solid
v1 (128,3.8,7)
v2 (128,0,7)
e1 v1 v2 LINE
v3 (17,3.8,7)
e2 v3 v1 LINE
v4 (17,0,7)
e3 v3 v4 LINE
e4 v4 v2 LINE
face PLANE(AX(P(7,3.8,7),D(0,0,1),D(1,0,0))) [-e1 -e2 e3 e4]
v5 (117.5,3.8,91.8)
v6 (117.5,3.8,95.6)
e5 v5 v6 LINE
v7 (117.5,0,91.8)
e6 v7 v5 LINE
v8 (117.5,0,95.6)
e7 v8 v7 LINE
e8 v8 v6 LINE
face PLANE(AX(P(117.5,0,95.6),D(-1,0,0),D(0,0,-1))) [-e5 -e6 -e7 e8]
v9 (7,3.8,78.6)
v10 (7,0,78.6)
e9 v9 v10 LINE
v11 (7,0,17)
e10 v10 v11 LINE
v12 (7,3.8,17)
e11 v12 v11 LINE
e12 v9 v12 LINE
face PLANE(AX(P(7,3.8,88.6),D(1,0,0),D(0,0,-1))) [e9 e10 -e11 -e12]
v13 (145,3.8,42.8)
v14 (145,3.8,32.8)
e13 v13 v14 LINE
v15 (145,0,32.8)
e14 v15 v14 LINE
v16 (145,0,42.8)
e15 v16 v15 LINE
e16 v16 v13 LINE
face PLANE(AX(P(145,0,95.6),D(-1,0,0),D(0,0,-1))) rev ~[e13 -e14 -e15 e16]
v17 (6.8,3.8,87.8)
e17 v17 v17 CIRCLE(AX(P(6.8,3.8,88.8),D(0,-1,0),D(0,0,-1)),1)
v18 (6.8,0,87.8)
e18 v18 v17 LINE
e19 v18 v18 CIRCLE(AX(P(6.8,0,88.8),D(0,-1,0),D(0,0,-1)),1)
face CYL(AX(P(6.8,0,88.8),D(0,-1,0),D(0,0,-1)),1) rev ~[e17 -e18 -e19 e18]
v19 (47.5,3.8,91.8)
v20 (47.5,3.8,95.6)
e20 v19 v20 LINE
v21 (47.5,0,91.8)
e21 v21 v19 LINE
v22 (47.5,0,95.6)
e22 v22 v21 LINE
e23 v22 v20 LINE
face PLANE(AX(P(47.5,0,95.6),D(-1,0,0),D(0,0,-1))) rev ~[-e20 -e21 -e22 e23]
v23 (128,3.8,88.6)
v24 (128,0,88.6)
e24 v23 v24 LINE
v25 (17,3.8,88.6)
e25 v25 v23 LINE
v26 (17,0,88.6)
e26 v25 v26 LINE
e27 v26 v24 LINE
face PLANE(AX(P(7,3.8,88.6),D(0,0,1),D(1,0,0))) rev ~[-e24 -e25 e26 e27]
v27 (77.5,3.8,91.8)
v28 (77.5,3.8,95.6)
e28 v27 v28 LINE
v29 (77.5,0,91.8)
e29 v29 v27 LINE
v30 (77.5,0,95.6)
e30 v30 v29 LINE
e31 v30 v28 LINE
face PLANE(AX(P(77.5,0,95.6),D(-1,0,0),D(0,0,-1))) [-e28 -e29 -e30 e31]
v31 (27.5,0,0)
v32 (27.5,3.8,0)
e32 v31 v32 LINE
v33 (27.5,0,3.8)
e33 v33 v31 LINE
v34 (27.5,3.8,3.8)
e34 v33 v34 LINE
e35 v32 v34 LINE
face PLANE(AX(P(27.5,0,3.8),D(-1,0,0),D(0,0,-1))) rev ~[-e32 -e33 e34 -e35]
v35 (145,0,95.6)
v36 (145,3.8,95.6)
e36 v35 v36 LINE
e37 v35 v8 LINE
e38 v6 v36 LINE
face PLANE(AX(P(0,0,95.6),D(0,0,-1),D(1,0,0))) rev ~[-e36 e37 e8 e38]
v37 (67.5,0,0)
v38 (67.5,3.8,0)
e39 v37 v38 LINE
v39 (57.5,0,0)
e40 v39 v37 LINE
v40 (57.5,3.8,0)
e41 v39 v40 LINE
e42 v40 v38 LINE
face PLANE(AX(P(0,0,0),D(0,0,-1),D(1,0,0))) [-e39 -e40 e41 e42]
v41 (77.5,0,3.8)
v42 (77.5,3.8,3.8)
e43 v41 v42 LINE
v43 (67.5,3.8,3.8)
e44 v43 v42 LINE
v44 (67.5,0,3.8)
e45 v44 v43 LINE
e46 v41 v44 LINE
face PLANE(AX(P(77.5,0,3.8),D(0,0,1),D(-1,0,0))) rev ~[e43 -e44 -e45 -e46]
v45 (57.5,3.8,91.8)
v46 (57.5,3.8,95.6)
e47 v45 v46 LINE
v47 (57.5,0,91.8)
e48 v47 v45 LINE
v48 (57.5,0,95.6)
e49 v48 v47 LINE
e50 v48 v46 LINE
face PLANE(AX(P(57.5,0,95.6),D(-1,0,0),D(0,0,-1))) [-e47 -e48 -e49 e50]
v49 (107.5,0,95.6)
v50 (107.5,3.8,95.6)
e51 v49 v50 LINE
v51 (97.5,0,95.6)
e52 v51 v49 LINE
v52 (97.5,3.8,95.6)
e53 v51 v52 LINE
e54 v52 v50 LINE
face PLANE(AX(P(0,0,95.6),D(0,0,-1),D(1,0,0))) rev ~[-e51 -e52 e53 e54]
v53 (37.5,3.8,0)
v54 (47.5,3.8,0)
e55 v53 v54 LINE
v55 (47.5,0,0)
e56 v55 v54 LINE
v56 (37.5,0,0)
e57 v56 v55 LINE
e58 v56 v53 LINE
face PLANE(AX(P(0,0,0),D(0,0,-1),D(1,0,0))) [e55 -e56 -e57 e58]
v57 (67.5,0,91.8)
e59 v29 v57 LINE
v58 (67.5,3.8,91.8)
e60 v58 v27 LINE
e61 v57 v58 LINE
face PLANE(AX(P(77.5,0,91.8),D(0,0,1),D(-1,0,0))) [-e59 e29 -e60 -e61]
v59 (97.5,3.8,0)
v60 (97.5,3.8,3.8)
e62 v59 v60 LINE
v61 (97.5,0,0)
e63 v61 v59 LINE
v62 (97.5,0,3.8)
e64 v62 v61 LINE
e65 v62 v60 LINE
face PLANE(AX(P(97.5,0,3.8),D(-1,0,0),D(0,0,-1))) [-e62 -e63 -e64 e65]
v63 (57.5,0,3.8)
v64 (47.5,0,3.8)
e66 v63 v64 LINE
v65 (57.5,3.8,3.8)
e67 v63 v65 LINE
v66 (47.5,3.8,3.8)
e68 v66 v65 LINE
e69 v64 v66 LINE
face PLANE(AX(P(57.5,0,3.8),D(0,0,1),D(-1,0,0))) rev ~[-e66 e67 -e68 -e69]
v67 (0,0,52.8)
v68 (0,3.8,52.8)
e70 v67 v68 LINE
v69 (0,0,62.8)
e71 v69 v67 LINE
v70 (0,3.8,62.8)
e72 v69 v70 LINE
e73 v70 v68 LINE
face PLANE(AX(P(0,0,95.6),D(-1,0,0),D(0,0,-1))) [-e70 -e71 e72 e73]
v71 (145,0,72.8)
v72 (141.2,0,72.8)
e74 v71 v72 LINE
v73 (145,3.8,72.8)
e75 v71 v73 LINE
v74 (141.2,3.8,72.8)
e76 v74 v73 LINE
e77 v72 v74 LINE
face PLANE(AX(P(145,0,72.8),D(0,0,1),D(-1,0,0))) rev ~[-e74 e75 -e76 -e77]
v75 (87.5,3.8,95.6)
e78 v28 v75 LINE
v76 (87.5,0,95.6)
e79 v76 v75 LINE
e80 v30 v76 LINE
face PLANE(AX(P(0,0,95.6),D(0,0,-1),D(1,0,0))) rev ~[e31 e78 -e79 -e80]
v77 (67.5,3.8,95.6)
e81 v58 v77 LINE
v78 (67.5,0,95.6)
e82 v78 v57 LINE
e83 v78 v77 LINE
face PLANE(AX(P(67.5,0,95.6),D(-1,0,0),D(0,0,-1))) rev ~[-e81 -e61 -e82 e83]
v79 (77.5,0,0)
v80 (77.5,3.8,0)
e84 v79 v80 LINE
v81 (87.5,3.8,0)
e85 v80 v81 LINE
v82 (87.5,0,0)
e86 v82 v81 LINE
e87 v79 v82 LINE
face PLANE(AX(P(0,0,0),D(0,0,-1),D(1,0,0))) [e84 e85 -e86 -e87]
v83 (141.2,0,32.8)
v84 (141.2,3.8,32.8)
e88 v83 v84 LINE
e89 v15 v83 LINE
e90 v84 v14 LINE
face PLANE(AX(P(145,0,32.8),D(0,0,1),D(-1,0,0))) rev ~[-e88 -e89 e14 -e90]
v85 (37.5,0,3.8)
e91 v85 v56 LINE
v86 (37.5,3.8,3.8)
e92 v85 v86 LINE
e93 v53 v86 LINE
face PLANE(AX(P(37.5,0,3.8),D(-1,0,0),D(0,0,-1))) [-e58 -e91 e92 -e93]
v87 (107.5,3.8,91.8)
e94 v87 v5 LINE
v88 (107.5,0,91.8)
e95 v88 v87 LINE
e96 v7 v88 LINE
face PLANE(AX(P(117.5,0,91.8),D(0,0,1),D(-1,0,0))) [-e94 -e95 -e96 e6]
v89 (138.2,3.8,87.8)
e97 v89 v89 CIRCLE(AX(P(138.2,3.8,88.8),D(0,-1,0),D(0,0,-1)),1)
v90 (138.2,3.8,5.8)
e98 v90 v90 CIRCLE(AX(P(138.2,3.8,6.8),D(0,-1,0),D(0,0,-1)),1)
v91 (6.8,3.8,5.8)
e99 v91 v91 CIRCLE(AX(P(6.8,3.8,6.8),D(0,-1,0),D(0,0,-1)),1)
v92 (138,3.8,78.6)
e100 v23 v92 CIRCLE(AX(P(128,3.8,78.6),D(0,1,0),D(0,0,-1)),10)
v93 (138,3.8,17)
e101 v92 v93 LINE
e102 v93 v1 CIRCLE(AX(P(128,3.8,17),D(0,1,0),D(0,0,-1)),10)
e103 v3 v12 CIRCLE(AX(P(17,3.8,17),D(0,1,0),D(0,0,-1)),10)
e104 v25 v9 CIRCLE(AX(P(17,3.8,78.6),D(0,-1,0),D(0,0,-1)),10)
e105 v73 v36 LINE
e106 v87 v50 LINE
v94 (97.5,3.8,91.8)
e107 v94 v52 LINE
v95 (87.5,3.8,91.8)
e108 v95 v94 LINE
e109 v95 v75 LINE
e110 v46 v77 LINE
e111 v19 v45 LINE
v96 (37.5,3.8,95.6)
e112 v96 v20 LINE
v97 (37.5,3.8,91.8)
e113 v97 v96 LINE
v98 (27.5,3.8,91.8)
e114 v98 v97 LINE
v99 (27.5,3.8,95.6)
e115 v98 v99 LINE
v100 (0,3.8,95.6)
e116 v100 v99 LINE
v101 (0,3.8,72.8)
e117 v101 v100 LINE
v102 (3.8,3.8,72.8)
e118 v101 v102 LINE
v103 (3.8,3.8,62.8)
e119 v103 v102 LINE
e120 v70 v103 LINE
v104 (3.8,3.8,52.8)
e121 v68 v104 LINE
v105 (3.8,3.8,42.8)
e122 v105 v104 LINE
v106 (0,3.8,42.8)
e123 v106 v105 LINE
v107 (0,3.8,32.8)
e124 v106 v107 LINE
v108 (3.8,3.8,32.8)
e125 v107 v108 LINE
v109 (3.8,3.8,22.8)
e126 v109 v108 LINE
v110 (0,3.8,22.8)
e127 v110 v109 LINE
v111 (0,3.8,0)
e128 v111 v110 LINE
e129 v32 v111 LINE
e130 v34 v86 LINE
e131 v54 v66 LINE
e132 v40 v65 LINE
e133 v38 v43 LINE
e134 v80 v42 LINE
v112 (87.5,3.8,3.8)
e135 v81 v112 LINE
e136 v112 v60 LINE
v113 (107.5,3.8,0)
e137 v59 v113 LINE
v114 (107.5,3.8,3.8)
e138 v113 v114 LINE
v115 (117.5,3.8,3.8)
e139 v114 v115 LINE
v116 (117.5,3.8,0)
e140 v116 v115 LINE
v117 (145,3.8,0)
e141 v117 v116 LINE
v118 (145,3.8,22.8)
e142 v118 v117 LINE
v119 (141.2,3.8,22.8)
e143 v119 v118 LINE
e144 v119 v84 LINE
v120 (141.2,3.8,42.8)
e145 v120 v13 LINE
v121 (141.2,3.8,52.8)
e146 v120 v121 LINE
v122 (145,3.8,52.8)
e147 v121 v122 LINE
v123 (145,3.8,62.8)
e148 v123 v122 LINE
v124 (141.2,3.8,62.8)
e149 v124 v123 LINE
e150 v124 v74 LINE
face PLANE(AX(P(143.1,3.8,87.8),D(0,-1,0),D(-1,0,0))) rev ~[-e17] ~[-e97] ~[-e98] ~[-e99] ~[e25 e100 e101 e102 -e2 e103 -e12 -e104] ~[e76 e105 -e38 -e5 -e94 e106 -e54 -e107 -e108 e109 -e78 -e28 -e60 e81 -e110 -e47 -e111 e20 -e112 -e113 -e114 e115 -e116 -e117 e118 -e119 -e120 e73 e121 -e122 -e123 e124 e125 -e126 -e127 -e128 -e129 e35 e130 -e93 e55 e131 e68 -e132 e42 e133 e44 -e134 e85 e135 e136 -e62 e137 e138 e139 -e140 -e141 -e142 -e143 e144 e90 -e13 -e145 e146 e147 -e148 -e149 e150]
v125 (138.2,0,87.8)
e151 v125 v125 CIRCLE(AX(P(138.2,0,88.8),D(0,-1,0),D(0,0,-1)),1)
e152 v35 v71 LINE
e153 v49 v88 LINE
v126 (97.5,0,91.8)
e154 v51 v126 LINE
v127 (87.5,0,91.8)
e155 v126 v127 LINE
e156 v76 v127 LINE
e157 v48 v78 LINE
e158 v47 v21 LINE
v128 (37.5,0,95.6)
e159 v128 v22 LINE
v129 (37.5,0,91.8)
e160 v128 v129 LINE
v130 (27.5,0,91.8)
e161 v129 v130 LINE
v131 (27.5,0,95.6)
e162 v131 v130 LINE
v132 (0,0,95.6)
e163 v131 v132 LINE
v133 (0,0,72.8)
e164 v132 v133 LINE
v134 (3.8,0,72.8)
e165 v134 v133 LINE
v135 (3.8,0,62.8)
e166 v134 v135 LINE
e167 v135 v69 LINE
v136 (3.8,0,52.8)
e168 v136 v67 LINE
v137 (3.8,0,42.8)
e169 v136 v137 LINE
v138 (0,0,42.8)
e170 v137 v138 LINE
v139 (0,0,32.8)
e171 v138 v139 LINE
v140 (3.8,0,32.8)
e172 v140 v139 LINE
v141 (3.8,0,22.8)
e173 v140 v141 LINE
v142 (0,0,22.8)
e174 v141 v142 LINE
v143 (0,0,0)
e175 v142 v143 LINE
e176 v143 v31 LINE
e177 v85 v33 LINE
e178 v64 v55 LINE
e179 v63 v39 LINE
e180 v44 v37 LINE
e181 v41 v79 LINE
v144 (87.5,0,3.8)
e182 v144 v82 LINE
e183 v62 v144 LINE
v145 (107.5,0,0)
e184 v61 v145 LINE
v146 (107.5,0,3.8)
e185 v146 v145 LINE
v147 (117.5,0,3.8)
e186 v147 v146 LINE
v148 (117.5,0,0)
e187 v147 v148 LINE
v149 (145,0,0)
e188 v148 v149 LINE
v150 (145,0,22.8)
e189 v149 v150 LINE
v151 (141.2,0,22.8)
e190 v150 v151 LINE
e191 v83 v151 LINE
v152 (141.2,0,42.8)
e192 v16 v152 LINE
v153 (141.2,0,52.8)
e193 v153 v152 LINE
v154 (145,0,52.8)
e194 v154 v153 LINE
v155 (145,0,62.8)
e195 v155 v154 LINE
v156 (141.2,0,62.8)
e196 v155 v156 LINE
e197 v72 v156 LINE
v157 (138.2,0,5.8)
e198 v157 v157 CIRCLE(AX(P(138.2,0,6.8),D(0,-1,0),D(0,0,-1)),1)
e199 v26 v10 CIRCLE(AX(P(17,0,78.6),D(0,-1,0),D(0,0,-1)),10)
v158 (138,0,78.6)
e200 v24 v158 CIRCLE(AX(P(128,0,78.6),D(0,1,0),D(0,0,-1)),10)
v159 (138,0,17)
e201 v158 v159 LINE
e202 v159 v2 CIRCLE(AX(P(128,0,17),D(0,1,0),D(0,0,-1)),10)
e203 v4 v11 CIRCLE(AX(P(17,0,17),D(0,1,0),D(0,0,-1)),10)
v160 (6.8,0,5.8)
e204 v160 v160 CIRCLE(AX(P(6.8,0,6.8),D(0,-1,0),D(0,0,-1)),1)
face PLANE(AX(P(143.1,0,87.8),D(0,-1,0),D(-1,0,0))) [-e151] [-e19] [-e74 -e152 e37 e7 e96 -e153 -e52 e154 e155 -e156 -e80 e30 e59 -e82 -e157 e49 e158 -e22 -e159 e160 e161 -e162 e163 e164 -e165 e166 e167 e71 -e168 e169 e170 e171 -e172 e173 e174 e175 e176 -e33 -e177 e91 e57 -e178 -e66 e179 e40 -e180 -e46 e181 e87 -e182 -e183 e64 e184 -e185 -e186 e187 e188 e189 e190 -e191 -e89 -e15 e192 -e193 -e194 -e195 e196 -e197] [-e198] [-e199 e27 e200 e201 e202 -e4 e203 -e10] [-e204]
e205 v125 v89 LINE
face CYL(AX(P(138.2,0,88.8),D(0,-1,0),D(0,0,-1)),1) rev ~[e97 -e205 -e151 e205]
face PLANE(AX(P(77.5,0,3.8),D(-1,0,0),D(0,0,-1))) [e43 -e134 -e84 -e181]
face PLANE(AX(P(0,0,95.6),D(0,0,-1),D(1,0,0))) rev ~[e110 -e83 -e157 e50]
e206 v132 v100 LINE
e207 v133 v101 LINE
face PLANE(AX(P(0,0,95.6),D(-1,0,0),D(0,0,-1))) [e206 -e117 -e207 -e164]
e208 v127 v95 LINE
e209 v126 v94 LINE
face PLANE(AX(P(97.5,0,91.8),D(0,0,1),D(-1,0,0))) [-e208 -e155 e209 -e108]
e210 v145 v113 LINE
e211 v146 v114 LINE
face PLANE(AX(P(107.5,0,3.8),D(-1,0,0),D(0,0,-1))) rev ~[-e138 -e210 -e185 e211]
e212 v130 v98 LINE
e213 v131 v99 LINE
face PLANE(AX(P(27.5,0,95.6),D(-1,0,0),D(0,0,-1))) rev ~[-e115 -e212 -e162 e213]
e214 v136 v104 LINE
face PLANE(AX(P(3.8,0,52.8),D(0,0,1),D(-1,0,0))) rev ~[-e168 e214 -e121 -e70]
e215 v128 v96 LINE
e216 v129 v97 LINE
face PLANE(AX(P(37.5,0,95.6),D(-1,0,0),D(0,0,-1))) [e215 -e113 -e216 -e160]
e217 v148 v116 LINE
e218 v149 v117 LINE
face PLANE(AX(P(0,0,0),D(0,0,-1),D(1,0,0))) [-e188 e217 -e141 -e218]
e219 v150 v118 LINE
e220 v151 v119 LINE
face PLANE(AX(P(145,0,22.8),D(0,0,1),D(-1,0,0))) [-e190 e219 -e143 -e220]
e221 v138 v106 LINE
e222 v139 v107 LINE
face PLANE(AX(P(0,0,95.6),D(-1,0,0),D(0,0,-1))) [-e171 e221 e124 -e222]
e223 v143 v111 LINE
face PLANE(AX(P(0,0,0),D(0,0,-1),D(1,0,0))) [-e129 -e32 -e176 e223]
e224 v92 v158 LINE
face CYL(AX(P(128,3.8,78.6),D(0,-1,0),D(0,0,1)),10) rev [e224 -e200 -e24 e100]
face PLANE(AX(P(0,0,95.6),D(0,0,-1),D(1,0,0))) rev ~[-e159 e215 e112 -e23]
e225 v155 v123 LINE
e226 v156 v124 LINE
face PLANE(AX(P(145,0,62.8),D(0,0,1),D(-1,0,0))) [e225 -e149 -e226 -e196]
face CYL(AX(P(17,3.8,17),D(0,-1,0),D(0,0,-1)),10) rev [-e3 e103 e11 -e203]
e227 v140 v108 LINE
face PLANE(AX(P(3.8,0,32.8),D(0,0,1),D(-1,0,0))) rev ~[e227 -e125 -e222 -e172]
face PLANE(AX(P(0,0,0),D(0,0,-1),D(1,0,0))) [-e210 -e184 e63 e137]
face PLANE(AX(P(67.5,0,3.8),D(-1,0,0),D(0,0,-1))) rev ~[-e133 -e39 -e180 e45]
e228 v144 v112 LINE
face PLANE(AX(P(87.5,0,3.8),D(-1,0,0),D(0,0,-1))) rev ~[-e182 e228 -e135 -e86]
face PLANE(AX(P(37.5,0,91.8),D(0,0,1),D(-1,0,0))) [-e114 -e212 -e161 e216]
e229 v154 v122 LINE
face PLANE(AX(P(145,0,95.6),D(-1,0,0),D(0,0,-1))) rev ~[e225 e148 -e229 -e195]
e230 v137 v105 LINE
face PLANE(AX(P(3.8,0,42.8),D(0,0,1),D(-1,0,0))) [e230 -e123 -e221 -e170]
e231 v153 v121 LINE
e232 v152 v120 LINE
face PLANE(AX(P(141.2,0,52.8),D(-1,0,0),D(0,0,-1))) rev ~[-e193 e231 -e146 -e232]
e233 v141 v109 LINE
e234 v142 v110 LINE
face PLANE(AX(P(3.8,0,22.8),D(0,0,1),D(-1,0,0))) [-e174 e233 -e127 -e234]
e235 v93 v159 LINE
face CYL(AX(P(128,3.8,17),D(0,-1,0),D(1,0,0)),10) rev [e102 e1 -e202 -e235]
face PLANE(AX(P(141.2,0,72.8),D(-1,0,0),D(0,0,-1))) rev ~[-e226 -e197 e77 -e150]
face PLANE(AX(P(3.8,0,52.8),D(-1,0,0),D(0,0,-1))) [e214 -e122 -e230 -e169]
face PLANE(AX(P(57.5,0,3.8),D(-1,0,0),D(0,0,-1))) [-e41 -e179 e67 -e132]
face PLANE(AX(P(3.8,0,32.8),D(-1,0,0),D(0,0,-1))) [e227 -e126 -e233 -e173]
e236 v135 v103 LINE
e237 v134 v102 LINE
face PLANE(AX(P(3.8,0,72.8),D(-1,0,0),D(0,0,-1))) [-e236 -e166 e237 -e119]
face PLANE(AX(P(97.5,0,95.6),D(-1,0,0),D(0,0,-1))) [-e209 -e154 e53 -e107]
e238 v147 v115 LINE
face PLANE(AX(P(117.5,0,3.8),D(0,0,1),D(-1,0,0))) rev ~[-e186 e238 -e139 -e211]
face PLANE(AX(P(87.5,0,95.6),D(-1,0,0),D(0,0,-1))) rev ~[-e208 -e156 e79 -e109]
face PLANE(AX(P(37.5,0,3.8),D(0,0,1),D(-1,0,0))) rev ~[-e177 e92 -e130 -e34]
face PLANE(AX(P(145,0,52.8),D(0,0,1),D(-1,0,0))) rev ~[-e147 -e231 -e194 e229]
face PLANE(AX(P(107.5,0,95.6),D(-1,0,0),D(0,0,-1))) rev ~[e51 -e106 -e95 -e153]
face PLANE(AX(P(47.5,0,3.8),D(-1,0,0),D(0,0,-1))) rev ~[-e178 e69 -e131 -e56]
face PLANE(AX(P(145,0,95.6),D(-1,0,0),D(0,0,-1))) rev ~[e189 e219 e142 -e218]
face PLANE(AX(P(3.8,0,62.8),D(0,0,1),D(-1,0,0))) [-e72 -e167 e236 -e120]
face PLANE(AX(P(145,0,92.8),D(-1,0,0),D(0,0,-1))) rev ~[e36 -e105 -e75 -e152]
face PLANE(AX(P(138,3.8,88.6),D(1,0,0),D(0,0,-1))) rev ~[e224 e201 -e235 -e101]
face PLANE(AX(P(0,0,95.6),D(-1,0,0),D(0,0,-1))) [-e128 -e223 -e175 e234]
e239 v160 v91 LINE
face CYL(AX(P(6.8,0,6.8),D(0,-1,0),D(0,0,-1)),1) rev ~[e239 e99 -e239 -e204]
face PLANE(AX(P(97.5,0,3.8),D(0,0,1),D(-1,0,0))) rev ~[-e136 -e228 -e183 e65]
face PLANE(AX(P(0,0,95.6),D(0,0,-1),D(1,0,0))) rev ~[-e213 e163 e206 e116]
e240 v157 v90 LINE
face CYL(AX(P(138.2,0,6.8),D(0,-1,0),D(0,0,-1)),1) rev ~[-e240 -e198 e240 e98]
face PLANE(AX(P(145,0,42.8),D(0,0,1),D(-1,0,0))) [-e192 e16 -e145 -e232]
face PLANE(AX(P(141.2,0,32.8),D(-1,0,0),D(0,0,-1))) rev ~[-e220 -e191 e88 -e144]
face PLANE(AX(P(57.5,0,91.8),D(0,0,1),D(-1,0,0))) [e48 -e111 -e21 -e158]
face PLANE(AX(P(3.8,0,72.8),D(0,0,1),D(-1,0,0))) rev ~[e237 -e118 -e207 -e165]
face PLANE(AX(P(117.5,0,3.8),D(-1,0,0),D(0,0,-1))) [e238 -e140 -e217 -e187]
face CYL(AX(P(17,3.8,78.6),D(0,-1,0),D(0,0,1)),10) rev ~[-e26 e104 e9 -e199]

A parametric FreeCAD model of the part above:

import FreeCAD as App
import Part
import Sketcher


def edges_at(feature, points):
    """Names of the edges that pass closest to the given points."""
    edges = feature.Shape.Edges
    near = lambda p: min(range(len(edges)), key=lambda i: edges[i].distToShape(Part.Vertex(*p))[0])
    return sorted({f"Edge{near(p) + 1}" for p in points})

doc = App.newDocument("Part")
params = doc.addObject("Spreadsheet::Sheet", "Params")
for row, (alias, value) in enumerate([
    ("sketch1_width", "145 mm"),
    ("sketch1_height", "95.6 mm"),
    ("pad1_length", "3.8 mm"),
    ("sketch2_width", "131 mm"),
    ("sketch2_height", "81.6 mm"),
    ("fillet_radius", "10 mm"),
    ("sketch3_diameter", "2 mm"),
    ("sketch4_width", "10 mm"),
    ("sketch4_height", "3.8 mm"),
    ("linearpattern_pitch", "20 mm"),
    ("linearpattern2_pitch", "20 mm"),
    ("sketch5_height", "10 mm"),
    ("sketch5_width", "3.8 mm"),
    ("linearpattern3_pitch", "20 mm"),
    ("linearpattern4_pitch", "20 mm"),
    ("sketch6_width", "10 mm"),
    ("sketch6_width2", "3.8 mm"),
    ("pad2_length", "3.8 mm"),
], start=1):
    params.set(f"A{row}", alias)
    params.set(f"B{row}", "=" + value)
    params.setAlias(f"B{row}", alias)

body = doc.addObject("PartDesign::Body", "Body")

sketch1 = body.newObject("Sketcher::SketchObject", "Sketch")
sketch1.AttachmentSupport = (doc.getObject("XZ_Plane"), [""])
sketch1.MapMode = "FlatFace"
sketch1.addGeometry(Part.LineSegment(App.Vector(0, 0, 0), App.Vector(0, 96, 0)), False)
sketch1.addGeometry(Part.LineSegment(App.Vector(0, 96, 0), App.Vector(145, 96, 0)), False)
sketch1.addGeometry(Part.LineSegment(App.Vector(145, 96, 0), App.Vector(145, 0, 0)), False)
sketch1.addGeometry(Part.LineSegment(App.Vector(145, 0, 0), App.Vector(0, 0, 0)), False)
sketch1.addConstraint(Sketcher.Constraint("Coincident", 0, 2, 1, 1))
sketch1.addConstraint(Sketcher.Constraint("Coincident", 1, 2, 2, 1))
sketch1.addConstraint(Sketcher.Constraint("Coincident", 2, 2, 3, 1))
sketch1.addConstraint(Sketcher.Constraint("Coincident", 3, 2, 0, 1))
sketch1.addConstraint(Sketcher.Constraint("Vertical", 0))
sketch1.addConstraint(Sketcher.Constraint("Horizontal", 1))
sketch1.addConstraint(Sketcher.Constraint("Vertical", 2))
sketch1.addConstraint(Sketcher.Constraint("Horizontal", 3))
sketch1.addConstraint(Sketcher.Constraint("Coincident", 3, 2, -1, 1))
sketch1.addConstraint(Sketcher.Constraint("DistanceX", 1, 1, 1, 2, 145.0))
sketch1.addConstraint(Sketcher.Constraint("DistanceY", 0, 1, 0, 2, 95.6))
sketch1.setExpression("Constraints[9]", "Params.sketch1_width")
sketch1.setExpression("Constraints[10]", "Params.sketch1_height")
pad1 = body.newObject("PartDesign::Pad", "Pad")
pad1.Profile = sketch1
pad1.setExpression("Length", "Params.pad1_length")
pad1.Reversed = True

sketch2 = body.newObject("Sketcher::SketchObject", "Sketch001")
sketch2.AttachmentSupport = (doc.getObject("XZ_Plane"), [""])
sketch2.MapMode = "FlatFace"
sketch2.AttachmentOffset = App.Placement(App.Vector(0, 0, -3.8), App.Rotation())
sketch2.addGeometry(Part.LineSegment(App.Vector(7, 7, 0), App.Vector(7, 89, 0)), False)
sketch2.addGeometry(Part.LineSegment(App.Vector(7, 89, 0), App.Vector(138, 89, 0)), False)
sketch2.addGeometry(Part.LineSegment(App.Vector(138, 89, 0), App.Vector(138, 7, 0)), False)
sketch2.addGeometry(Part.LineSegment(App.Vector(138, 7, 0), App.Vector(7, 7, 0)), False)
sketch2.addConstraint(Sketcher.Constraint("Coincident", 0, 2, 1, 1))
sketch2.addConstraint(Sketcher.Constraint("Coincident", 1, 2, 2, 1))
sketch2.addConstraint(Sketcher.Constraint("Coincident", 2, 2, 3, 1))
sketch2.addConstraint(Sketcher.Constraint("Coincident", 3, 2, 0, 1))
sketch2.addConstraint(Sketcher.Constraint("Vertical", 0))
sketch2.addConstraint(Sketcher.Constraint("Horizontal", 1))
sketch2.addConstraint(Sketcher.Constraint("Vertical", 2))
sketch2.addConstraint(Sketcher.Constraint("Horizontal", 3))
sketch2.addConstraint(Sketcher.Constraint("DistanceX", 1, 1, 1, 2, 131.0))
sketch2.addConstraint(Sketcher.Constraint("DistanceY", 0, 1, 0, 2, 81.6))
sketch2.addConstraint(Sketcher.Constraint("DistanceX", -1, 1, 0, 2, 7.0))
sketch2.addConstraint(Sketcher.Constraint("DistanceY", -1, 1, 2, 2, 7.0))
sketch2.setExpression("Constraints[8]", "Params.sketch2_width")
sketch2.setExpression("Constraints[9]", "Params.sketch2_height")
pocket1 = body.newObject("PartDesign::Pocket", "Pocket")
pocket1.Profile = sketch2
pocket1.Type = "ThroughAll"
pocket1.Reversed = True
doc.recompute()

fillet = body.newObject("PartDesign::Fillet", "Fillet")
fillet.Base = (pocket1, edges_at(pocket1, [
    (7, 1.9, 88.6),
    (7, 1.9, 7),
    (138, 1.9, 7),
    (138, 1.9, 88.6),
]))
fillet.setExpression("Radius", "Params.fillet_radius")

sketch3 = body.newObject("Sketcher::SketchObject", "Sketch002")
sketch3.AttachmentSupport = (doc.getObject("XZ_Plane"), [""])
sketch3.MapMode = "FlatFace"
sketch3.addGeometry(Part.Circle(App.Vector(6.8, 88.8, 0), App.Vector(0, 0, 1), 1), False)
sketch3.addGeometry(Part.Circle(App.Vector(138.2, 88.8, 0), App.Vector(0, 0, 1), 1), False)
sketch3.addGeometry(Part.Circle(App.Vector(138.2, 6.8, 0), App.Vector(0, 0, 1), 1), False)
sketch3.addGeometry(Part.Circle(App.Vector(6.8, 6.8, 0), App.Vector(0, 0, 1), 1), False)
sketch3.addConstraint(Sketcher.Constraint("Equal", 0, 1))
sketch3.addConstraint(Sketcher.Constraint("Equal", 1, 2))
sketch3.addConstraint(Sketcher.Constraint("Equal", 2, 3))
sketch3.addConstraint(Sketcher.Constraint("Horizontal", 0, 3, 1, 3))
sketch3.addConstraint(Sketcher.Constraint("Horizontal", 2, 3, 3, 3))
sketch3.addConstraint(Sketcher.Constraint("Vertical", 1, 3, 2, 3))
sketch3.addConstraint(Sketcher.Constraint("Vertical", 0, 3, 3, 3))
sketch3.addConstraint(Sketcher.Constraint("Diameter", 0, 2.0))
sketch3.addConstraint(Sketcher.Constraint("DistanceY", 2, 3, 1, 3, 82.0))
sketch3.addConstraint(Sketcher.Constraint("DistanceX", -1, 1, 0, 3, 6.8))
sketch3.addConstraint(Sketcher.Constraint("DistanceY", -1, 1, 0, 3, 88.8))
sketch3.addConstraint(Sketcher.Constraint("DistanceX", -1, 1, 1, 3, 138.2))
sketch3.setExpression("Constraints[7]", "Params.sketch3_diameter")
pocket2 = body.newObject("PartDesign::Pocket", "Pocket001")
pocket2.Profile = sketch3
pocket2.Type = "ThroughAll"

sketch4 = body.newObject("Sketcher::SketchObject", "Sketch003")
sketch4.AttachmentSupport = (doc.getObject("XZ_Plane"), [""])
sketch4.MapMode = "FlatFace"
sketch4.addGeometry(Part.LineSegment(App.Vector(77.5, 91.8, 0), App.Vector(77.5, 95.6, 0)), False)
sketch4.addGeometry(Part.LineSegment(App.Vector(77.5, 95.6, 0), App.Vector(67.5, 95.6, 0)), False)
sketch4.addGeometry(Part.LineSegment(App.Vector(67.5, 95.6, 0), App.Vector(67.5, 91.8, 0)), False)
sketch4.addGeometry(Part.LineSegment(App.Vector(67.5, 91.8, 0), App.Vector(77.5, 91.8, 0)), False)
sketch4.addGeometry(Part.LineSegment(App.Vector(77.5, 0, 0), App.Vector(77.5, 3.8, 0)), False)
sketch4.addGeometry(Part.LineSegment(App.Vector(77.5, 3.8, 0), App.Vector(67.5, 3.8, 0)), False)
sketch4.addGeometry(Part.LineSegment(App.Vector(67.5, 3.8, 0), App.Vector(67.5, 0, 0)), False)
sketch4.addGeometry(Part.LineSegment(App.Vector(67.5, 0, 0), App.Vector(77.5, 0, 0)), False)
sketch4.addConstraint(Sketcher.Constraint("Coincident", 0, 2, 1, 1))
sketch4.addConstraint(Sketcher.Constraint("Coincident", 1, 2, 2, 1))
sketch4.addConstraint(Sketcher.Constraint("Coincident", 2, 2, 3, 1))
sketch4.addConstraint(Sketcher.Constraint("Coincident", 3, 2, 0, 1))
sketch4.addConstraint(Sketcher.Constraint("Coincident", 4, 2, 5, 1))
sketch4.addConstraint(Sketcher.Constraint("Coincident", 5, 2, 6, 1))
sketch4.addConstraint(Sketcher.Constraint("Coincident", 6, 2, 7, 1))
sketch4.addConstraint(Sketcher.Constraint("Coincident", 7, 2, 4, 1))
sketch4.addConstraint(Sketcher.Constraint("Vertical", 0))
sketch4.addConstraint(Sketcher.Constraint("Horizontal", 1))
sketch4.addConstraint(Sketcher.Constraint("Vertical", 2))
sketch4.addConstraint(Sketcher.Constraint("Horizontal", 3))
sketch4.addConstraint(Sketcher.Constraint("Vertical", 4))
sketch4.addConstraint(Sketcher.Constraint("Horizontal", 5))
sketch4.addConstraint(Sketcher.Constraint("Vertical", 6))
sketch4.addConstraint(Sketcher.Constraint("Horizontal", 7))
sketch4.addConstraint(Sketcher.Constraint("PointOnObject", 6, 2, -1))
sketch4.addConstraint(Sketcher.Constraint("Vertical", 3, 2, 4, 2))
sketch4.addConstraint(Sketcher.Constraint("Vertical", 2, 2, 5, 2))
sketch4.addConstraint(Sketcher.Constraint("Equal", 2, 4))
sketch4.addConstraint(Sketcher.Constraint("DistanceX", 1, 2, 1, 1, 10.0))
sketch4.addConstraint(Sketcher.Constraint("DistanceY", 0, 1, 0, 2, 3.8))
sketch4.addConstraint(Sketcher.Constraint("DistanceY", 4, 2, 3, 2, 88.0))
sketch4.addConstraint(Sketcher.Constraint("DistanceX", -1, 1, 0, 2, 77.5))
sketch4.setExpression("Constraints[20]", "Params.sketch4_width")
sketch4.setExpression("Constraints[21]", "Params.sketch4_height")
pocket3 = body.newObject("PartDesign::Pocket", "Pocket002")
pocket3.Profile = sketch4
pocket3.Type = "ThroughAll"
doc.recompute()

linearpattern = body.newObject("PartDesign::LinearPattern", "LinearPattern")
linearpattern.Originals = [pocket3]
linearpattern.Direction = (doc.getObject("X_Axis"), [""])
linearpattern.Mode = "offset"
linearpattern.setExpression("Offset", "Params.linearpattern_pitch")
linearpattern.Occurrences = 4
body.Tip = linearpattern
doc.recompute()

linearpattern2 = body.newObject("PartDesign::LinearPattern", "LinearPattern001")
linearpattern2.Originals = [pocket3]
linearpattern2.Direction = (doc.getObject("X_Axis"), [""])
linearpattern2.Mode = "offset"
linearpattern2.setExpression("Offset", "Params.linearpattern2_pitch")
linearpattern2.Occurrences = 4
linearpattern2.Reversed = True
body.Tip = linearpattern2

sketch5 = body.newObject("Sketcher::SketchObject", "Sketch004")
sketch5.AttachmentSupport = (doc.getObject("XZ_Plane"), [""])
sketch5.MapMode = "FlatFace"
sketch5.addGeometry(Part.LineSegment(App.Vector(3.8, 42.8, 0), App.Vector(3.8, 52.8, 0)), False)
sketch5.addGeometry(Part.LineSegment(App.Vector(3.8, 52.8, 0), App.Vector(0, 52.8, 0)), False)
sketch5.addGeometry(Part.LineSegment(App.Vector(0, 52.8, 0), App.Vector(0, 42.8, 0)), False)
sketch5.addGeometry(Part.LineSegment(App.Vector(0, 42.8, 0), App.Vector(3.8, 42.8, 0)), False)
sketch5.addGeometry(Part.LineSegment(App.Vector(145, 42.8, 0), App.Vector(145, 52.8, 0)), False)
sketch5.addGeometry(Part.LineSegment(App.Vector(145, 52.8, 0), App.Vector(141.2, 52.8, 0)), False)
sketch5.addGeometry(Part.LineSegment(App.Vector(141.2, 52.8, 0), App.Vector(141.2, 42.8, 0)), False)
sketch5.addGeometry(Part.LineSegment(App.Vector(141.2, 42.8, 0), App.Vector(145, 42.8, 0)), False)
sketch5.addConstraint(Sketcher.Constraint("Coincident", 0, 2, 1, 1))
sketch5.addConstraint(Sketcher.Constraint("Coincident", 1, 2, 2, 1))
sketch5.addConstraint(Sketcher.Constraint("Coincident", 2, 2, 3, 1))
sketch5.addConstraint(Sketcher.Constraint("Coincident", 3, 2, 0, 1))
sketch5.addConstraint(Sketcher.Constraint("Coincident", 4, 2, 5, 1))
sketch5.addConstraint(Sketcher.Constraint("Coincident", 5, 2, 6, 1))
sketch5.addConstraint(Sketcher.Constraint("Coincident", 6, 2, 7, 1))
sketch5.addConstraint(Sketcher.Constraint("Coincident", 7, 2, 4, 1))
sketch5.addConstraint(Sketcher.Constraint("Vertical", 0))
sketch5.addConstraint(Sketcher.Constraint("Horizontal", 1))
sketch5.addConstraint(Sketcher.Constraint("Vertical", 2))
sketch5.addConstraint(Sketcher.Constraint("Horizontal", 3))
sketch5.addConstraint(Sketcher.Constraint("Vertical", 4))
sketch5.addConstraint(Sketcher.Constraint("Horizontal", 5))
sketch5.addConstraint(Sketcher.Constraint("Vertical", 6))
sketch5.addConstraint(Sketcher.Constraint("Horizontal", 7))
sketch5.addConstraint(Sketcher.Constraint("PointOnObject", 1, 2, -2))
sketch5.addConstraint(Sketcher.Constraint("Horizontal", 1, 2, 4, 2))
sketch5.addConstraint(Sketcher.Constraint("Horizontal", 3, 2, 6, 2))
sketch5.addConstraint(Sketcher.Constraint("Equal", 3, 5))
sketch5.addConstraint(Sketcher.Constraint("DistanceY", 0, 1, 0, 2, 10.0))
sketch5.addConstraint(Sketcher.Constraint("DistanceX", 1, 2, 1, 1, 3.8))
sketch5.addConstraint(Sketcher.Constraint("DistanceX", -1, 1, 4, 2, 145.0))
sketch5.addConstraint(Sketcher.Constraint("DistanceY", -1, 1, 0, 2, 52.8))
sketch5.setExpression("Constraints[20]", "Params.sketch5_height")
sketch5.setExpression("Constraints[21]", "Params.sketch5_width")
pocket4 = body.newObject("PartDesign::Pocket", "Pocket003")
pocket4.Profile = sketch5
pocket4.Type = "ThroughAll"
doc.recompute()

linearpattern3 = body.newObject("PartDesign::LinearPattern", "LinearPattern002")
linearpattern3.Originals = [pocket4]
linearpattern3.Direction = (doc.getObject("Z_Axis"), [""])
linearpattern3.Mode = "offset"
linearpattern3.setExpression("Offset", "Params.linearpattern3_pitch")
linearpattern3.Occurrences = 3
body.Tip = linearpattern3
doc.recompute()

linearpattern4 = body.newObject("PartDesign::LinearPattern", "LinearPattern003")
linearpattern4.Originals = [pocket4]
linearpattern4.Direction = (doc.getObject("Z_Axis"), [""])
linearpattern4.Mode = "offset"
linearpattern4.setExpression("Offset", "Params.linearpattern4_pitch")
linearpattern4.Occurrences = 3
linearpattern4.Reversed = True
body.Tip = linearpattern4

sketch6 = body.newObject("Sketcher::SketchObject", "Sketch005")
sketch6.AttachmentSupport = (doc.getObject("XZ_Plane"), [""])
sketch6.MapMode = "FlatFace"
sketch6.addGeometry(Part.LineSegment(App.Vector(145, 82.8, 0), App.Vector(145, 92.8, 0)), False)
sketch6.addGeometry(Part.LineSegment(App.Vector(145, 92.8, 0), App.Vector(141.2, 92.8, 0)), False)
sketch6.addGeometry(Part.LineSegment(App.Vector(141.2, 92.8, 0), App.Vector(141.2, 82.8, 0)), False)
sketch6.addGeometry(Part.LineSegment(App.Vector(141.2, 82.8, 0), App.Vector(145, 82.8, 0)), False)
sketch6.addGeometry(Part.LineSegment(App.Vector(137.5, 91.8, 0), App.Vector(137.5, 95.6, 0)), False)
sketch6.addGeometry(Part.LineSegment(App.Vector(137.5, 95.6, 0), App.Vector(127.5, 95.6, 0)), False)
sketch6.addGeometry(Part.LineSegment(App.Vector(127.5, 95.6, 0), App.Vector(127.5, 91.8, 0)), False)
sketch6.addGeometry(Part.LineSegment(App.Vector(127.5, 91.8, 0), App.Vector(137.5, 91.8, 0)), False)
sketch6.addGeometry(Part.LineSegment(App.Vector(137.5, 0, 0), App.Vector(137.5, 3.8, 0)), False)
sketch6.addGeometry(Part.LineSegment(App.Vector(137.5, 3.8, 0), App.Vector(127.5, 3.8, 0)), False)
sketch6.addGeometry(Part.LineSegment(App.Vector(127.5, 3.8, 0), App.Vector(127.5, 0, 0)), False)
sketch6.addGeometry(Part.LineSegment(App.Vector(127.5, 0, 0), App.Vector(137.5, 0, 0)), False)
sketch6.addGeometry(Part.LineSegment(App.Vector(145, 2.8, 0), App.Vector(145, 12.8, 0)), False)
sketch6.addGeometry(Part.LineSegment(App.Vector(145, 12.8, 0), App.Vector(141.2, 12.8, 0)), False)
sketch6.addGeometry(Part.LineSegment(App.Vector(141.2, 12.8, 0), App.Vector(141.2, 2.8, 0)), False)
sketch6.addGeometry(Part.LineSegment(App.Vector(141.2, 2.8, 0), App.Vector(145, 2.8, 0)), False)
sketch6.addGeometry(Part.LineSegment(App.Vector(3.8, 2.8, 0), App.Vector(3.8, 12.8, 0)), False)
sketch6.addGeometry(Part.LineSegment(App.Vector(3.8, 12.8, 0), App.Vector(0, 12.8, 0)), False)
sketch6.addGeometry(Part.LineSegment(App.Vector(0, 12.8, 0), App.Vector(0, 2.8, 0)), False)
sketch6.addGeometry(Part.LineSegment(App.Vector(0, 2.8, 0), App.Vector(3.8, 2.8, 0)), False)
sketch6.addGeometry(Part.LineSegment(App.Vector(17.5, 0, 0), App.Vector(17.5, 3.8, 0)), False)
sketch6.addGeometry(Part.LineSegment(App.Vector(17.5, 3.8, 0), App.Vector(7.5, 3.8, 0)), False)
sketch6.addGeometry(Part.LineSegment(App.Vector(7.5, 3.8, 0), App.Vector(7.5, 0, 0)), False)
sketch6.addGeometry(Part.LineSegment(App.Vector(7.5, 0, 0), App.Vector(17.5, 0, 0)), False)
sketch6.addGeometry(Part.LineSegment(App.Vector(3.8, 82.8, 0), App.Vector(3.8, 92.8, 0)), False)
sketch6.addGeometry(Part.LineSegment(App.Vector(3.8, 92.8, 0), App.Vector(0, 92.8, 0)), False)
sketch6.addGeometry(Part.LineSegment(App.Vector(0, 92.8, 0), App.Vector(0, 82.8, 0)), False)
sketch6.addGeometry(Part.LineSegment(App.Vector(0, 82.8, 0), App.Vector(3.8, 82.8, 0)), False)
sketch6.addGeometry(Part.LineSegment(App.Vector(17.5, 91.8, 0), App.Vector(17.5, 95.6, 0)), False)
sketch6.addGeometry(Part.LineSegment(App.Vector(17.5, 95.6, 0), App.Vector(7.5, 95.6, 0)), False)
sketch6.addGeometry(Part.LineSegment(App.Vector(7.5, 95.6, 0), App.Vector(7.5, 91.8, 0)), False)
sketch6.addGeometry(Part.LineSegment(App.Vector(7.5, 91.8, 0), App.Vector(17.5, 91.8, 0)), False)
sketch6.addConstraint(Sketcher.Constraint("Coincident", 0, 2, 1, 1))
sketch6.addConstraint(Sketcher.Constraint("Coincident", 1, 2, 2, 1))
sketch6.addConstraint(Sketcher.Constraint("Coincident", 2, 2, 3, 1))
sketch6.addConstraint(Sketcher.Constraint("Coincident", 3, 2, 0, 1))
sketch6.addConstraint(Sketcher.Constraint("Coincident", 4, 2, 5, 1))
sketch6.addConstraint(Sketcher.Constraint("Coincident", 5, 2, 6, 1))
sketch6.addConstraint(Sketcher.Constraint("Coincident", 6, 2, 7, 1))
sketch6.addConstraint(Sketcher.Constraint("Coincident", 7, 2, 4, 1))
sketch6.addConstraint(Sketcher.Constraint("Coincident", 8, 2, 9, 1))
sketch6.addConstraint(Sketcher.Constraint("Coincident", 9, 2, 10, 1))
sketch6.addConstraint(Sketcher.Constraint("Coincident", 10, 2, 11, 1))
sketch6.addConstraint(Sketcher.Constraint("Coincident", 11, 2, 8, 1))
sketch6.addConstraint(Sketcher.Constraint("Coincident", 12, 2, 13, 1))
sketch6.addConstraint(Sketcher.Constraint("Coincident", 13, 2, 14, 1))
sketch6.addConstraint(Sketcher.Constraint("Coincident", 14, 2, 15, 1))
sketch6.addConstraint(Sketcher.Constraint("Coincident", 15, 2, 12, 1))
sketch6.addConstraint(Sketcher.Constraint("Coincident", 16, 2, 17, 1))
sketch6.addConstraint(Sketcher.Constraint("Coincident", 17, 2, 18, 1))
sketch6.addConstraint(Sketcher.Constraint("Coincident", 18, 2, 19, 1))
sketch6.addConstraint(Sketcher.Constraint("Coincident", 19, 2, 16, 1))
sketch6.addConstraint(Sketcher.Constraint("Coincident", 20, 2, 21, 1))
sketch6.addConstraint(Sketcher.Constraint("Coincident", 21, 2, 22, 1))
sketch6.addConstraint(Sketcher.Constraint("Coincident", 22, 2, 23, 1))
sketch6.addConstraint(Sketcher.Constraint("Coincident", 23, 2, 20, 1))
sketch6.addConstraint(Sketcher.Constraint("Coincident", 24, 2, 25, 1))
sketch6.addConstraint(Sketcher.Constraint("Coincident", 25, 2, 26, 1))
sketch6.addConstraint(Sketcher.Constraint("Coincident", 26, 2, 27, 1))
sketch6.addConstraint(Sketcher.Constraint("Coincident", 27, 2, 24, 1))
sketch6.addConstraint(Sketcher.Constraint("Coincident", 28, 2, 29, 1))
sketch6.addConstraint(Sketcher.Constraint("Coincident", 29, 2, 30, 1))
sketch6.addConstraint(Sketcher.Constraint("Coincident", 30, 2, 31, 1))
sketch6.addConstraint(Sketcher.Constraint("Coincident", 31, 2, 28, 1))
sketch6.addConstraint(Sketcher.Constraint("Vertical", 0))
sketch6.addConstraint(Sketcher.Constraint("Horizontal", 1))
sketch6.addConstraint(Sketcher.Constraint("Vertical", 2))
sketch6.addConstraint(Sketcher.Constraint("Horizontal", 3))
sketch6.addConstraint(Sketcher.Constraint("Vertical", 4))
sketch6.addConstraint(Sketcher.Constraint("Horizontal", 5))
sketch6.addConstraint(Sketcher.Constraint("Vertical", 6))
sketch6.addConstraint(Sketcher.Constraint("Horizontal", 7))
sketch6.addConstraint(Sketcher.Constraint("Vertical", 8))
sketch6.addConstraint(Sketcher.Constraint("Horizontal", 9))
sketch6.addConstraint(Sketcher.Constraint("Vertical", 10))
sketch6.addConstraint(Sketcher.Constraint("Horizontal", 11))
sketch6.addConstraint(Sketcher.Constraint("Vertical", 12))
sketch6.addConstraint(Sketcher.Constraint("Horizontal", 13))
sketch6.addConstraint(Sketcher.Constraint("Vertical", 14))
sketch6.addConstraint(Sketcher.Constraint("Horizontal", 15))
sketch6.addConstraint(Sketcher.Constraint("Vertical", 16))
sketch6.addConstraint(Sketcher.Constraint("Horizontal", 17))
sketch6.addConstraint(Sketcher.Constraint("Vertical", 18))
sketch6.addConstraint(Sketcher.Constraint("Horizontal", 19))
sketch6.addConstraint(Sketcher.Constraint("Vertical", 20))
sketch6.addConstraint(Sketcher.Constraint("Horizontal", 21))
sketch6.addConstraint(Sketcher.Constraint("Vertical", 22))
sketch6.addConstraint(Sketcher.Constraint("Horizontal", 23))
sketch6.addConstraint(Sketcher.Constraint("Vertical", 24))
sketch6.addConstraint(Sketcher.Constraint("Horizontal", 25))
sketch6.addConstraint(Sketcher.Constraint("Vertical", 26))
sketch6.addConstraint(Sketcher.Constraint("Horizontal", 27))
sketch6.addConstraint(Sketcher.Constraint("Vertical", 28))
sketch6.addConstraint(Sketcher.Constraint("Horizontal", 29))
sketch6.addConstraint(Sketcher.Constraint("Vertical", 30))
sketch6.addConstraint(Sketcher.Constraint("Horizontal", 31))
sketch6.addConstraint(Sketcher.Constraint("PointOnObject", 10, 2, -1))
sketch6.addConstraint(Sketcher.Constraint("PointOnObject", 17, 2, -2))
sketch6.addConstraint(Sketcher.Constraint("PointOnObject", 22, 2, -1))
sketch6.addConstraint(Sketcher.Constraint("PointOnObject", 25, 2, -2))
sketch6.addConstraint(Sketcher.Constraint("Horizontal", 13, 2, 16, 2))
sketch6.addConstraint(Sketcher.Constraint("Horizontal", 15, 2, 18, 2))
sketch6.addConstraint(Sketcher.Constraint("Horizontal", 9, 2, 20, 2))
sketch6.addConstraint(Sketcher.Constraint("Horizontal", 1, 2, 24, 2))
sketch6.addConstraint(Sketcher.Constraint("Horizontal", 3, 2, 26, 2))
sketch6.addConstraint(Sketcher.Constraint("Horizontal", 5, 2, 28, 2))
sketch6.addConstraint(Sketcher.Constraint("Horizontal", 7, 2, 30, 2))
sketch6.addConstraint(Sketcher.Constraint("Vertical", 7, 2, 8, 2))
sketch6.addConstraint(Sketcher.Constraint("Vertical", 6, 2, 9, 2))
sketch6.addConstraint(Sketcher.Constraint("Vertical", 3, 2, 12, 2))
sketch6.addConstraint(Sketcher.Constraint("Vertical", 2, 2, 13, 2))
sketch6.addConstraint(Sketcher.Constraint("Vertical", 19, 2, 24, 2))
sketch6.addConstraint(Sketcher.Constraint("Vertical", 23, 2, 28, 2))
sketch6.addConstraint(Sketcher.Constraint("Vertical", 22, 2, 29, 2))
sketch6.addConstraint(Sketcher.Constraint("Equal", 15, 17))
sketch6.addConstraint(Sketcher.Constraint("Equal", 11, 21))
sketch6.addConstraint(Sketcher.Constraint("Equal", 31, 0))
sketch6.addConstraint(Sketcher.Constraint("Equal", 27, 4))
sketch6.addConstraint(Sketcher.Constraint("Equal", 6, 8))
sketch6.addConstraint(Sketcher.Constraint("Equal", 2, 12))
sketch6.addConstraint(Sketcher.Constraint("DistanceX", 5, 2, 5, 1, 10.0))
sketch6.addConstraint(Sketcher.Constraint("DistanceX", 1, 2, 1, 1, 3.8))
sketch6.addConstraint(Sketcher.Constraint("DistanceX", -1, 1, 0, 2, 145.0))
sketch6.addConstraint(Sketcher.Constraint("DistanceY", 6, 2, 1, 2, 1.0))
sketch6.addConstraint(Sketcher.Constraint("DistanceY", 8, 2, 2, 2, 79.0))
sketch6.addConstraint(Sketcher.Constraint("DistanceY", 8, 2, 12, 2, 9.0))
sketch6.addConstraint(Sketcher.Constraint("DistanceX", 20, 2, 9, 2, 110.0))
sketch6.addConstraint(Sketcher.Constraint("DistanceX", -1, 1, 4, 2, 137.5))
sketch6.setExpression("Constraints[88]", "Params.sketch6_width")
sketch6.setExpression("Constraints[89]", "Params.sketch6_width2")
pad2 = body.newObject("PartDesign::Pad", "Pad001")
pad2.Profile = sketch6
pad2.setExpression("Length", "Params.pad2_length")
pad2.Reversed = True

doc.recompute()
